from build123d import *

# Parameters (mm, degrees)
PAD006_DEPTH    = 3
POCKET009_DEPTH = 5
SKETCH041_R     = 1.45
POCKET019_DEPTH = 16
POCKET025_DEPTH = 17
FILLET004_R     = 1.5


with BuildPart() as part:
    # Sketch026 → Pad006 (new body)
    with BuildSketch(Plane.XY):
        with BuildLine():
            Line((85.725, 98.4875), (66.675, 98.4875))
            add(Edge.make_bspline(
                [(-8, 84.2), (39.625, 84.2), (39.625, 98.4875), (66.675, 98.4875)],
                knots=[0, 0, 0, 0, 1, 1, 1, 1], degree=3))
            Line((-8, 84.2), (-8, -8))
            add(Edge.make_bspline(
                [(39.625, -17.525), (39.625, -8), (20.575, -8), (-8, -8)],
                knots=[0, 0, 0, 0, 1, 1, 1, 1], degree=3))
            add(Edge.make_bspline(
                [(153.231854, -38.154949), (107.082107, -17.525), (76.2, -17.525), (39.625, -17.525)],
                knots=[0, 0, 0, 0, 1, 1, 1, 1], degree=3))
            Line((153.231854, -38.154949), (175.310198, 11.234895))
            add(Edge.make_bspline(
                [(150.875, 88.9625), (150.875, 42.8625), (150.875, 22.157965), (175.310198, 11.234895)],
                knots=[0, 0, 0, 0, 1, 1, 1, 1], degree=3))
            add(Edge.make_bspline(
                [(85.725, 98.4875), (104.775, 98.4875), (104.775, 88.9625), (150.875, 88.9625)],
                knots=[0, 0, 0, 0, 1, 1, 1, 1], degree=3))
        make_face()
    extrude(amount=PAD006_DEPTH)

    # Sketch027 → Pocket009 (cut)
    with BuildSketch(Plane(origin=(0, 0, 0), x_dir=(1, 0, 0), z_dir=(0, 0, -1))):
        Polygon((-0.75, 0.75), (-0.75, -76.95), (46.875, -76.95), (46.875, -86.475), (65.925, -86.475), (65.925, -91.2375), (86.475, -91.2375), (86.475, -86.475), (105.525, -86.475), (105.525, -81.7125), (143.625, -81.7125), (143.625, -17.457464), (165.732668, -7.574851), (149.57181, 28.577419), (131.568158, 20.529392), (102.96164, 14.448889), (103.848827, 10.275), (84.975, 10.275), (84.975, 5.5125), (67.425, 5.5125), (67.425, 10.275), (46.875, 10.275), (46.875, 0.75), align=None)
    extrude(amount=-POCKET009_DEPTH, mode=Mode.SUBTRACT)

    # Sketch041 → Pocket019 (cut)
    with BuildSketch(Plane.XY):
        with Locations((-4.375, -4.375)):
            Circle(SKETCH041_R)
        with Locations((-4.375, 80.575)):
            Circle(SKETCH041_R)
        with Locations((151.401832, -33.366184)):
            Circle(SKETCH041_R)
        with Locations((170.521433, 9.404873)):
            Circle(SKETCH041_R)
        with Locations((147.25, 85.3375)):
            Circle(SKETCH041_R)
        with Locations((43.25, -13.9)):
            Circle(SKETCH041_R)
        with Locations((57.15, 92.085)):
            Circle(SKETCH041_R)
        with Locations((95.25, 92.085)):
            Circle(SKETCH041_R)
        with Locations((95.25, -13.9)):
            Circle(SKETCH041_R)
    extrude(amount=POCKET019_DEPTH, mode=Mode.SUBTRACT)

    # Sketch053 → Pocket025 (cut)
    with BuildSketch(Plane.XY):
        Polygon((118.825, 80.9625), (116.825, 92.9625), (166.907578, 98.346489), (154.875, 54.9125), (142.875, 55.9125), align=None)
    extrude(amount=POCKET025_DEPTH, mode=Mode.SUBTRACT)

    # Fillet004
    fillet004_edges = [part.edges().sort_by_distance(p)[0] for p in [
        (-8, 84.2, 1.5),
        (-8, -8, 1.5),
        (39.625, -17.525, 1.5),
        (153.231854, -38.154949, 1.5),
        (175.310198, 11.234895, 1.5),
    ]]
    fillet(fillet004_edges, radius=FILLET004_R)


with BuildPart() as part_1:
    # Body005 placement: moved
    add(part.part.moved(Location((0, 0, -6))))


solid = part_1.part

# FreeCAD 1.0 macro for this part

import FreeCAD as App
import Part
import Sketcher

V = App.Vector
Q = App.Units.Quantity


def edges_at(feature, points):
    """Names of the edges that pass closest to the given points."""
    edges = feature.Shape.Edges
    near = lambda p: min(range(len(edges)), key=lambda i: edges[i].distToShape(Part.Vertex(*p))[0])
    return sorted({f"Edge{near(p) + 1}" for p in points})

doc = App.newDocument("Part")
body = doc.addObject("PartDesign::Body", "Body")

# Sketch on XY plane
sketch1 = doc.addObject("Sketcher::SketchObject", "Sketch")
body.addObject(sketch1)
sketch1.AttachmentSupport = (doc.XY_Plane, [""])
sketch1.MapMode = "FlatFace"
sketch1.addGeometry([
    Part.LineSegment(V(85.725, 98.4875, 0), V(66.675, 98.4875, 0)),  # 0
    Part.BSplineCurve([V(-8, 84.2, 0), V(39.625, 84.2, 0), V(39.625, 98.4875, 0), V(66.675, 98.4875, 0)], [4, 4], [0, 1], False, 3, [1, 1, 1, 1], False),  # 1
    Part.LineSegment(V(-8, 84.2, 0), V(-8, -8, 0)),  # 2
    Part.BSplineCurve([V(39.625, -17.525, 0), V(39.625, -8, 0), V(20.575, -8, 0), V(-8, -8, 0)], [4, 4], [0, 1], False, 3, [1, 1, 1, 1], False),  # 3
    Part.BSplineCurve([V(153.231854, -38.154949, 0), V(107.082107, -17.525, 0), V(76.2, -17.525, 0), V(39.625, -17.525, 0)], [4, 4], [0, 1], False, 3, [1, 1, 1, 1], False),  # 4
    Part.LineSegment(V(153.231854, -38.154949, 0), V(175.310198, 11.234895, 0)),  # 5
    Part.BSplineCurve([V(150.875, 88.9625, 0), V(150.875, 42.8625, 0), V(150.875, 22.157965, 0), V(175.310198, 11.234895, 0)], [4, 4], [0, 1], False, 3, [1, 1, 1, 1], False),  # 6
    Part.BSplineCurve([V(85.725, 98.4875, 0), V(104.775, 98.4875, 0), V(104.775, 88.9625, 0), V(150.875, 88.9625, 0)], [4, 4], [0, 1], False, 3, [1, 1, 1, 1], False),  # 7
], False)
sketch1.addConstraint([
    Sketcher.Constraint("Block", 1),
    Sketcher.Constraint("Block", 3),
    Sketcher.Constraint("Block", 4),
    Sketcher.Constraint("Block", 6),
    Sketcher.Constraint("Block", 7),
    Sketcher.Constraint("Coincident", 0, 2, 1, 2),
    Sketcher.Constraint("Coincident", 1, 1, 2, 1),
    Sketcher.Constraint("Coincident", 2, 2, 3, 2),
    Sketcher.Constraint("Coincident", 4, 1, 5, 1),
    Sketcher.Constraint("Coincident", 5, 2, 6, 2),
    Sketcher.Constraint("Coincident", 7, 1, 0, 1),
])
pad1 = doc.addObject("PartDesign::Pad", "Pad")
body.addObject(pad1)
pad1.Profile = sketch1
pad1.Length = 3

# Sketch on XY plane
sketch2 = doc.addObject("Sketcher::SketchObject", "Sketch001")
body.addObject(sketch2)
sketch2.AttachmentSupport = (doc.XY_Plane, [""])
sketch2.MapMode = "FlatFace"
sketch2.addGeometry([
    Part.LineSegment(V(-0.8, -0.8, 0), V(-0.8, 77, 0)),  # 0
    Part.LineSegment(V(-0.8, 77, 0), V(46.9, 77, 0)),  # 1
    Part.LineSegment(V(46.9, 77, 0), V(46.9, 86.5, 0)),  # 2
    Part.LineSegment(V(46.9, 86.5, 0), V(65.9, 86.5, 0)),  # 3
    Part.LineSegment(V(65.9, 86.5, 0), V(65.9, 91.2, 0)),  # 4
    Part.LineSegment(V(65.9, 91.2, 0), V(86.5, 91.2, 0)),  # 5
    Part.LineSegment(V(86.5, 91.2, 0), V(86.5, 86.5, 0)),  # 6
    Part.LineSegment(V(86.5, 86.5, 0), V(105.5, 86.5, 0)),  # 7
    Part.LineSegment(V(105.5, 86.5, 0), V(105.5, 81.7, 0)),  # 8
    Part.LineSegment(V(105.5, 81.7, 0), V(143.6, 81.7, 0)),  # 9
    Part.LineSegment(V(143.6, 81.7, 0), V(143.6, 17.5, 0)),  # 10
    Part.LineSegment(V(143.6, 17.5, 0), V(165.7, 7.6, 0)),  # 11
    Part.LineSegment(V(165.7, 7.6, 0), V(149.6, -28.6, 0)),  # 12
    Part.LineSegment(V(149.6, -28.6, 0), V(131.6, -20.5, 0)),  # 13
    Part.LineSegment(V(131.6, -20.5, 0), V(103, -14.4, 0)),  # 14
    Part.LineSegment(V(103, -14.4, 0), V(103.8, -10.3, 0)),  # 15
    Part.LineSegment(V(103.8, -10.3, 0), V(85, -10.3, 0)),  # 16
    Part.LineSegment(V(85, -10.3, 0), V(85, -5.5, 0)),  # 17
    Part.LineSegment(V(85, -5.5, 0), V(67.4, -5.5, 0)),  # 18
    Part.LineSegment(V(67.4, -5.5, 0), V(67.4, -10.3, 0)),  # 19
    Part.LineSegment(V(67.4, -10.3, 0), V(46.9, -10.3, 0)),  # 20
    Part.LineSegment(V(46.9, -10.3, 0), V(46.9, -0.8, 0)),  # 21
    Part.LineSegment(V(46.9, -0.8, 0), V(-0.8, -0.8, 0)),  # 22
], False)
sketch2.addConstraint([
    Sketcher.Constraint("Coincident", 0, 2, 1, 1),
    Sketcher.Constraint("Coincident", 1, 2, 2, 1),
    Sketcher.Constraint("Coincident", 2, 2, 3, 1),
    Sketcher.Constraint("Coincident", 3, 2, 4, 1),
    Sketcher.Constraint("Coincident", 4, 2, 5, 1),
    Sketcher.Constraint("Coincident", 5, 2, 6, 1),
    Sketcher.Constraint("Coincident", 6, 2, 7, 1),
    Sketcher.Constraint("Coincident", 7, 2, 8, 1),
    Sketcher.Constraint("Coincident", 8, 2, 9, 1),
    Sketcher.Constraint("Coincident", 9, 2, 10, 1),
    Sketcher.Constraint("Coincident", 10, 2, 11, 1),
    Sketcher.Constraint("Coincident", 11, 2, 12, 1),
    Sketcher.Constraint("Coincident", 12, 2, 13, 1),
    Sketcher.Constraint("Coincident", 13, 2, 14, 1),
    Sketcher.Constraint("Coincident", 14, 2, 15, 1),
    Sketcher.Constraint("Coincident", 15, 2, 16, 1),
    Sketcher.Constraint("Coincident", 16, 2, 17, 1),
    Sketcher.Constraint("Coincident", 17, 2, 18, 1),
    Sketcher.Constraint("Coincident", 18, 2, 19, 1),
    Sketcher.Constraint("Coincident", 19, 2, 20, 1),
    Sketcher.Constraint("Coincident", 20, 2, 21, 1),
    Sketcher.Constraint("Coincident", 21, 2, 22, 1),
    Sketcher.Constraint("Coincident", 22, 2, 0, 1),
    Sketcher.Constraint("Vertical", 0),
    Sketcher.Constraint("Horizontal", 1),
    Sketcher.Constraint("Vertical", 2),
    Sketcher.Constraint("Horizontal", 3),
    Sketcher.Constraint("Vertical", 4),
    Sketcher.Constraint("Horizontal", 5),
    Sketcher.Constraint("Vertical", 6),
    Sketcher.Constraint("Horizontal", 7),
    Sketcher.Constraint("Vertical", 8),
    Sketcher.Constraint("Horizontal", 9),
    Sketcher.Constraint("Vertical", 10),
    Sketcher.Constraint("Horizontal", 16),
    Sketcher.Constraint("Vertical", 17),
    Sketcher.Constraint("Horizontal", 18),
    Sketcher.Constraint("Vertical", 19),
    Sketcher.Constraint("Horizontal", 20),
    Sketcher.Constraint("Vertical", 21),
    Sketcher.Constraint("Horizontal", 22),
    Sketcher.Constraint("Perpendicular", 11, 12),
    Sketcher.Constraint("Perpendicular", 12, 13),
    Sketcher.Constraint("Perpendicular", 14, 15),
    Sketcher.Constraint("Horizontal", 3, 2, 6, 2),
    Sketcher.Constraint("Horizontal", 16, 2, 19, 2),
    Sketcher.Constraint("Vertical", 2, 2, 20, 2),
    Sketcher.Constraint("Equal", 3, 7),
    Sketcher.Constraint("Equal", 5, 20),
    Sketcher.Constraint("Equal", 6, 8),
    Sketcher.Constraint("Equal", 8, 17),
    Sketcher.Constraint("Equal", 2, 21),
    Sketcher.Constraint("Angle", 14, Q("168 deg")),
    Sketcher.Constraint("DistanceX", 9, 1, 9, 2, Q("38.1 mm")),
    Sketcher.Constraint("DistanceY", 0, 1, 0, 2, Q("77.7 mm")),
    Sketcher.Constraint("Distance", 12, Q("39.599999 mm")),
    Sketcher.Constraint("DistanceX", 3, 1, 3, 2, Q("19.05 mm")),
    Sketcher.Constraint("DistanceX", 5, 1, 5, 2, Q("20.55 mm")),
    Sketcher.Constraint("DistanceX", 18, 2, 18, 1, Q("17.55 mm")),
    Sketcher.Constraint("DistanceX", 1, 1, 1, 2, Q("47.625 mm")),
    Sketcher.Constraint("DistanceY", 2, 1, 2, 2, Q("9.525 mm")),
    Sketcher.Constraint("DistanceX", 0, 2, -1, 1, Q("0.75 mm")),
    Sketcher.Constraint("DistanceY", -1, 1, 0, 2, Q("76.95 mm")),
    Sketcher.Constraint("DistanceY", 4, 1, 4, 2, Q("4.7625 mm")),
    Sketcher.Constraint("DistanceX", 16, 2, 16, 1, Q("18.873827 mm")),
    Sketcher.Constraint("DistanceY", 10, 2, 10, 1, Q("64.255036 mm")),
    Sketcher.Constraint("DistanceY", -1, 1, 11, 2, Q("7.574851 mm")),
    Sketcher.Constraint("DistanceX", -1, 1, 12, 2, Q("149.57181 mm")),
    Sketcher.Constraint("DistanceX", -1, 1, 13, 2, Q("131.568158 mm")),
])
pocket1 = doc.addObject("PartDesign::Pocket", "Pocket")
body.addObject(pocket1)
pocket1.Profile = sketch2
pocket1.Length = 5
pocket1.Reversed = True

# Sketch on XY plane
sketch3 = doc.addObject("Sketcher::SketchObject", "Sketch002")
body.addObject(sketch3)
sketch3.AttachmentSupport = (doc.XY_Plane, [""])
sketch3.MapMode = "FlatFace"
sketch3.addGeometry([
    Part.Circle(V(-4.4, -4.4, 0), V(0, 0, 1), 1.4),  # 0
    Part.Circle(V(-4.4, 80.6, 0), V(0, 0, 1), 1.4),  # 1
    Part.Circle(V(151.4, -33.4, 0), V(0, 0, 1), 1.4),  # 2
    Part.Circle(V(170.5, 9.4, 0), V(0, 0, 1), 1.4),  # 3
    Part.Circle(V(147.2, 85.3, 0), V(0, 0, 1), 1.4),  # 4
    Part.Circle(V(43.2, -13.9, 0), V(0, 0, 1), 1.4),  # 5
    Part.Circle(V(57.1, 92.1, 0), V(0, 0, 1), 1.4),  # 6
    Part.Circle(V(95.2, 92.1, 0), V(0, 0, 1), 1.4),  # 7
    Part.Circle(V(95.2, -13.9, 0), V(0, 0, 1), 1.4),  # 8
], False)
sketch3.addConstraint([
    Sketcher.Constraint("Equal", 0, 1),
    Sketcher.Constraint("Equal", 1, 2),
    Sketcher.Constraint("Equal", 2, 3),
    Sketcher.Constraint("Equal", 3, 4),
    Sketcher.Constraint("Equal", 4, 5),
    Sketcher.Constraint("Equal", 5, 6),
    Sketcher.Constraint("Equal", 6, 7),
    Sketcher.Constraint("Equal", 7, 8),
    Sketcher.Constraint("Horizontal", 6, 3, 7, 3),
    Sketcher.Constraint("Horizontal", 5, 3, 8, 3),
    Sketcher.Constraint("Vertical", 0, 3, 1, 3),
    Sketcher.Constraint("Vertical", 7, 3, 8, 3),
    Sketcher.Constraint("Diameter", 0, Q("2.9 mm")),
    Sketcher.Constraint("DistanceX", 5, 3, 4, 3, Q("104 mm")),
    Sketcher.Constraint("DistanceX", 7, 3, 4, 3, Q("52 mm")),
    Sketcher.Constraint("DistanceY", 5, 3, -1, 1, Q("13.9 mm")),
    Sketcher.Constraint("DistanceX", 6, 3, 4, 3, Q("90.1 mm")),
    Sketcher.Constraint("DistanceX", -1, 1, 4, 3, Q("147.25 mm")),
    Sketcher.Constraint("DistanceY", 0, 3, 1, 3, Q("84.95 mm")),
    Sketcher.Constraint("DistanceY", 1, 3, 6, 3, Q("11.51 mm")),
    Sketcher.Constraint("DistanceX", 0, 3, -1, 1, Q("4.375 mm")),
    Sketcher.Constraint("DistanceY", 0, 3, -1, 1, Q("4.375 mm")),
    Sketcher.Constraint("DistanceY", -1, 1, 4, 3, Q("85.3375 mm")),
    Sketcher.Constraint("DistanceX", 2, 3, 3, 3, Q("19.119601 mm")),
    Sketcher.Constraint("DistanceX", -1, 1, 2, 3, Q("151.401832 mm")),
    Sketcher.Constraint("DistanceY", 2, 3, -1, 1, Q("33.366184 mm")),
    Sketcher.Constraint("DistanceY", -1, 1, 3, 3, Q("9.404873 mm")),
])
pocket2 = doc.addObject("PartDesign::Pocket", "Pocket001")
body.addObject(pocket2)
pocket2.Profile = sketch3
pocket2.Length = 16
pocket2.Reversed = True

# Sketch on XY plane
sketch4 = doc.addObject("Sketcher::SketchObject", "Sketch003")
body.addObject(sketch4)
sketch4.AttachmentSupport = (doc.XY_Plane, [""])
sketch4.MapMode = "FlatFace"
sketch4.addGeometry([
    Part.LineSegment(V(117, 93, 0), V(119, 81, 0)),  # 0
    Part.LineSegment(V(119, 81, 0), V(143, 56, 0)),  # 1
    Part.LineSegment(V(143, 56, 0), V(155, 55, 0)),  # 2
    Part.LineSegment(V(155, 55, 0), V(167, 98, 0)),  # 3
    Part.LineSegment(V(167, 98, 0), V(117, 93, 0)),  # 4
], False)
sketch4.addConstraint([
    Sketcher.Constraint("Coincident", 0, 2, 1, 1),
    Sketcher.Constraint("Coincident", 1, 2, 2, 1),
    Sketcher.Constraint("Coincident", 2, 2, 3, 1),
    Sketcher.Constraint("Coincident", 3, 2, 4, 1),
    Sketcher.Constraint("Coincident", 4, 2, 0, 1),
    Sketcher.Constraint("DistanceX", 1, 2, 2, 2, Q("12 mm")),
    Sketcher.Constraint("DistanceY", 2, 2, 1, 2, Q("1 mm")),
    Sketcher.Constraint("DistanceX", 4, 2, 0, 2, Q("2 mm")),
    Sketcher.Constraint("DistanceY", 0, 2, 4, 2, Q("12 mm")),
    Sketcher.Constraint("DistanceX", 0, 2, 1, 2, Q("24.05 mm")),
    Sketcher.Constraint("DistanceY", 1, 2, 0, 2, Q("25.05 mm")),
    Sketcher.Constraint("DistanceX", -1, 1, 0, 2, Q("118.825 mm")),
    Sketcher.Constraint("DistanceY", -1, 1, 0, 2, Q("80.9625 mm")),
    Sketcher.Constraint("DistanceX", -1, 1, 3, 2, Q("166.907578 mm")),
    Sketcher.Constraint("DistanceY", -1, 1, 3, 2, Q("98.346489 mm")),
])
pocket3 = doc.addObject("PartDesign::Pocket", "Pocket002")
body.addObject(pocket3)
pocket3.Profile = sketch4
pocket3.Length = 17
pocket3.Reversed = True
doc.recompute()

fillet = doc.addObject("PartDesign::Fillet", "Fillet")
body.addObject(fillet)
fillet.Base = (pocket3, edges_at(pocket3, [
    (-8, 84.2, 1.5),
    (-8, -8, 1.5),
    (39.625, -17.525, 1.5),
    (153.232, -38.155, 1.5),
    (175.31, 11.235, 1.5),
]))
fillet.Radius = 1.5
body2 = doc.addObject("PartDesign::Body", "Body001")
doc.recompute()

body.Placement = App.Placement(V(0, 0, -6), App.Rotation(V(0, 0, 1), 0))
boolean = doc.addObject("PartDesign::Boolean", "Boolean")
body2.addObject(boolean)
boolean.Type = "Fuse"
boolean.addObjects([body])

doc.recompute()
